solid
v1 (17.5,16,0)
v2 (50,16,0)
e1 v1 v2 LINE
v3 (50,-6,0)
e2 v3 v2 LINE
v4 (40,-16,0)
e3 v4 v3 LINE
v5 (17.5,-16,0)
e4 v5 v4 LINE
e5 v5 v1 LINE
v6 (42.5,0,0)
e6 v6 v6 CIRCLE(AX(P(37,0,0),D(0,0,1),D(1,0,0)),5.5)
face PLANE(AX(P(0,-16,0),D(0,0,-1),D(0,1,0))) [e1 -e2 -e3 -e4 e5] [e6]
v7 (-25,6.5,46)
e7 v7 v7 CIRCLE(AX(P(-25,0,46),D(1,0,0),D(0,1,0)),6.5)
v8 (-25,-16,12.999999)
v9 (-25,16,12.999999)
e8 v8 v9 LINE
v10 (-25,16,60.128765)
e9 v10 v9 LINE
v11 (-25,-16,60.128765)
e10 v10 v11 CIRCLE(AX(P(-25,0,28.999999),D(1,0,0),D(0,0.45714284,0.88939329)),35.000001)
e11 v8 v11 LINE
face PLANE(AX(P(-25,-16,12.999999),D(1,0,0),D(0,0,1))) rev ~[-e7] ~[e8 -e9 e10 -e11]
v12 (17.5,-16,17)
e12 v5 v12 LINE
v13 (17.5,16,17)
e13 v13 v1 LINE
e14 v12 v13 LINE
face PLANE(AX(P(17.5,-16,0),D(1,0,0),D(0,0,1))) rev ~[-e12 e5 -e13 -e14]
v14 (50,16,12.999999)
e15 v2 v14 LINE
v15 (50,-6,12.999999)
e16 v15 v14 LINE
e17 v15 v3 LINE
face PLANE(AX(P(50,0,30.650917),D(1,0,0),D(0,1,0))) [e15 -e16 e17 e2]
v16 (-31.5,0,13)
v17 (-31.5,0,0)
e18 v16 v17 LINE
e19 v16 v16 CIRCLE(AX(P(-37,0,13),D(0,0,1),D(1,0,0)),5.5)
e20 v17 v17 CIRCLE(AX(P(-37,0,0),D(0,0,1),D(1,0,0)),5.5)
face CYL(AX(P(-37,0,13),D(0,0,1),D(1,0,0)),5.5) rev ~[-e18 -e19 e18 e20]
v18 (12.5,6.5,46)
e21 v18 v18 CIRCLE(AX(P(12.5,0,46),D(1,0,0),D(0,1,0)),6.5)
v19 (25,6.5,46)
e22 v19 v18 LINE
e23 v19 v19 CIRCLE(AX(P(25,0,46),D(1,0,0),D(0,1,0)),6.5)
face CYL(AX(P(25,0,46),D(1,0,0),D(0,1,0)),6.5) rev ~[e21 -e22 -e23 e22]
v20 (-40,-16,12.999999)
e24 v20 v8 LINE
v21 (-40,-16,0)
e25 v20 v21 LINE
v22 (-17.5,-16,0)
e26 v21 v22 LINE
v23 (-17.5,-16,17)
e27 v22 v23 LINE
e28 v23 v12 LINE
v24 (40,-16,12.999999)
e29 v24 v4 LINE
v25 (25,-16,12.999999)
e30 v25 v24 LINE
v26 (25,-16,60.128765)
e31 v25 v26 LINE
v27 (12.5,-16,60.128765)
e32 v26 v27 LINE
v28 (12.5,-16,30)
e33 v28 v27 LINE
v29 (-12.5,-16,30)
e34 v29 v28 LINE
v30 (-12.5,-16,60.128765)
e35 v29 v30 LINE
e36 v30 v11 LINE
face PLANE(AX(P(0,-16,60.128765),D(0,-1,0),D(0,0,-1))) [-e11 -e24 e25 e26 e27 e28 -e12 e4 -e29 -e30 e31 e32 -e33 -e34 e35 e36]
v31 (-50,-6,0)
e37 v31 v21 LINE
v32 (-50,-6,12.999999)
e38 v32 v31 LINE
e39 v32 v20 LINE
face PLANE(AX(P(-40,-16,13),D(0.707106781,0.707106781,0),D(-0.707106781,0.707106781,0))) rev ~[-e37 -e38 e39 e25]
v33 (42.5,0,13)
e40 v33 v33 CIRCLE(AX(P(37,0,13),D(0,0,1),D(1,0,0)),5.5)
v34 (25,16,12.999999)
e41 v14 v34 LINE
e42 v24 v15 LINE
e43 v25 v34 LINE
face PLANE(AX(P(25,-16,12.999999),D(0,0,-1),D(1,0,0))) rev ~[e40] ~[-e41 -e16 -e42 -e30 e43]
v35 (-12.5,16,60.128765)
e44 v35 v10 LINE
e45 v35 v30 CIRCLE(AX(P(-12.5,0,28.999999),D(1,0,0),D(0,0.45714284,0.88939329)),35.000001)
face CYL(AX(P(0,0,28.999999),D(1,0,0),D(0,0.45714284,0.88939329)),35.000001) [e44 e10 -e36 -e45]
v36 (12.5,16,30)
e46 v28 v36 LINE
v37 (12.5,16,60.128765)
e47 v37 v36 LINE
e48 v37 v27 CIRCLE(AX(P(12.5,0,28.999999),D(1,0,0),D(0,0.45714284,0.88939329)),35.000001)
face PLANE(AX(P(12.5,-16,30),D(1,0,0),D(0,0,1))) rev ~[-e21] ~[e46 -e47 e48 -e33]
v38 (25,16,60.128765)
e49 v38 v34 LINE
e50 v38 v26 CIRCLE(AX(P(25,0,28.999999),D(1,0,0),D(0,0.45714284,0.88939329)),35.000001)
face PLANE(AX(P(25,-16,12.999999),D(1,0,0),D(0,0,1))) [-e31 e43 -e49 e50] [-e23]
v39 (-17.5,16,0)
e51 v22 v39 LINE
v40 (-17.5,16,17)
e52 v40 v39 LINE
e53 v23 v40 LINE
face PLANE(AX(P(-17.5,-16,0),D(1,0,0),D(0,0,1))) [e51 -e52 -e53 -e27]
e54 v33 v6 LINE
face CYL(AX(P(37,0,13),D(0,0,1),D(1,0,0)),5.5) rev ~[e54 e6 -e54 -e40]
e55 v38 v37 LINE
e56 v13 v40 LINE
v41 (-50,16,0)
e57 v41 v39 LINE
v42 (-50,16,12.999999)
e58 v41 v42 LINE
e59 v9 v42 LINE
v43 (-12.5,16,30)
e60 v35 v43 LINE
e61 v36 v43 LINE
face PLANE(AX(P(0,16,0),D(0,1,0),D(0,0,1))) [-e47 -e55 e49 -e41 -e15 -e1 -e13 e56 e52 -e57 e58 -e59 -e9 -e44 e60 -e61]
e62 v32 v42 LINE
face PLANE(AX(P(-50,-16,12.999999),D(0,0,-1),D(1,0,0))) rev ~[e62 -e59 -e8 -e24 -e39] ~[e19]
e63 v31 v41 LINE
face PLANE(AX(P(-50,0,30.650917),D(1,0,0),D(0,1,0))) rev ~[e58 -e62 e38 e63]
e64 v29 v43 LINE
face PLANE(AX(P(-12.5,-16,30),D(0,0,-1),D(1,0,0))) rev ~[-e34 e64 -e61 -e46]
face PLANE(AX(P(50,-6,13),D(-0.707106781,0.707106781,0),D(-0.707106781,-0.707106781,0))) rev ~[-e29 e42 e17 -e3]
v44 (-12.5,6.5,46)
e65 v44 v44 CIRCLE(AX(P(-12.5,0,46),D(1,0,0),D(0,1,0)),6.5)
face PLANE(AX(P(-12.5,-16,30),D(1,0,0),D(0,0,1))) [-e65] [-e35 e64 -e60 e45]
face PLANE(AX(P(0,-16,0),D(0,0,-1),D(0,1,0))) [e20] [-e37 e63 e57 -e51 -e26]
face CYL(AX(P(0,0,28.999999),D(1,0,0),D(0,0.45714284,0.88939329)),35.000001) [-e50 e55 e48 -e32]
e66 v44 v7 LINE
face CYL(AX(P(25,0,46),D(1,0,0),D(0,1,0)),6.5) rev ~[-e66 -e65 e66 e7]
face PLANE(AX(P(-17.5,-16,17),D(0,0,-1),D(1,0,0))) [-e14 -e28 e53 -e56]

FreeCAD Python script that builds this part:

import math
import FreeCAD as App
import Part
import Sketcher

V = App.Vector
Q = App.Units.Quantity


def add_polygon(sketch, points):
    """Adds a closed chain of lines whose ends are joined by coincident constraints."""
    first, n = sketch.GeometryCount, len(points)
    for a, b in zip(points, points[1:] + points[:1]):
        sketch.addGeometry(Part.LineSegment(App.Vector(*a, 0), App.Vector(*b, 0)), False)
    for i in range(n):
        sketch.addConstraint(Sketcher.Constraint("Coincident", first + i, 2, first + (i + 1) % n, 1))

doc = App.newDocument("Part")
body = doc.addObject("PartDesign::Body", "Body")

sketch1 = body.newObject("Sketcher::SketchObject", "Sketch")
sketch1.AttachmentSupport = (doc.getObject("YZ_Plane"), [""])
sketch1.MapMode = "FlatFace"
sketch1.addGeometry(Part.LineSegment(V(-16, 60, 0), V(-16, 0, 0)), False)
sketch1.addGeometry(Part.LineSegment(V(-16, 0, 0), V(16, 0, 0)), False)
sketch1.addGeometry(Part.LineSegment(V(16, 0, 0), V(16, 60, 0)), False)
sketch1.addGeometry(Part.ArcOfCircle(Part.Circle(V(0, 29, 0), V(0, 0, 1), 35), math.radians(63), math.radians(117)), False)
sketch1.addConstraint(Sketcher.Constraint("Coincident", 0, 2, 1, 1))
sketch1.addConstraint(Sketcher.Constraint("Coincident", 1, 2, 2, 1))
sketch1.addConstraint(Sketcher.Constraint("Coincident", 2, 2, 3, 1))
sketch1.addConstraint(Sketcher.Constraint("Coincident", 3, 2, 0, 1))
sketch1.addConstraint(Sketcher.Constraint("Vertical", 0))
sketch1.addConstraint(Sketcher.Constraint("Horizontal", 1))
sketch1.addConstraint(Sketcher.Constraint("Vertical", 2))
sketch1.addConstraint(Sketcher.Constraint("Symmetric", 0, 2, 1, 2, -1, 1))
sketch1.addConstraint(Sketcher.Constraint("PointOnObject", 3, 3, -2))
sketch1.addConstraint(Sketcher.Constraint("Radius", 3, Q("35.000001 mm")))
sketch1.addConstraint(Sketcher.Constraint("DistanceX", 1, 1, 1, 2, Q("32 mm")))
sketch1.addConstraint(Sketcher.Constraint("DistanceY", -1, 1, 3, 3, Q("28.999999 mm")))
pad1 = body.newObject("PartDesign::Pad", "Pad")
pad1.Profile = sketch1
pad1.Length = 100
pad1.Midplane = True

sketch2 = body.newObject("Sketcher::SketchObject", "Sketch001")
sketch2.AttachmentSupport = (doc.getObject("XZ_Plane"), [""])
sketch2.MapMode = "FlatFace"
sketch2.AttachmentOffset = App.Placement(V(0, 0, 16), App.Rotation())
add_polygon(sketch2, [(-18, 17), (-18, 0), (18, 0), (18, 17)])
add_polygon(sketch2, [(-12, 70), (-12, 30), (12, 30), (12, 70)])
add_polygon(sketch2, [(-50, 73), (-50, 13), (-25, 13), (-25, 73)])
add_polygon(sketch2, [(25, 73), (25, 13), (50, 13), (50, 73)])
sketch2.addConstraint(Sketcher.Constraint("Vertical", 0))
sketch2.addConstraint(Sketcher.Constraint("Horizontal", 1))
sketch2.addConstraint(Sketcher.Constraint("Vertical", 2))
sketch2.addConstraint(Sketcher.Constraint("Horizontal", 3))
sketch2.addConstraint(Sketcher.Constraint("Vertical", 4))
sketch2.addConstraint(Sketcher.Constraint("Horizontal", 5))
sketch2.addConstraint(Sketcher.Constraint("Vertical", 6))
sketch2.addConstraint(Sketcher.Constraint("Horizontal", 7))
sketch2.addConstraint(Sketcher.Constraint("Vertical", 8))
sketch2.addConstraint(Sketcher.Constraint("Horizontal", 9))
sketch2.addConstraint(Sketcher.Constraint("Vertical", 10))
sketch2.addConstraint(Sketcher.Constraint("Horizontal", 11))
sketch2.addConstraint(Sketcher.Constraint("Vertical", 12))
sketch2.addConstraint(Sketcher.Constraint("Horizontal", 13))
sketch2.addConstraint(Sketcher.Constraint("Vertical", 14))
sketch2.addConstraint(Sketcher.Constraint("Horizontal", 15))
sketch2.addConstraint(Sketcher.Constraint("Symmetric", 0, 2, 1, 2, -1, 1))
sketch2.addConstraint(Sketcher.Constraint("Symmetric", 9, 2, 12, 2, -2))
sketch2.addConstraint(Sketcher.Constraint("Symmetric", 11, 2, 14, 2, -2))
sketch2.addConstraint(Sketcher.Constraint("Equal", 7, 9))
sketch2.addConstraint(Sketcher.Constraint("DistanceX", 1, 1, 1, 2, Q("35 mm")))
sketch2.addConstraint(Sketcher.Constraint("DistanceX", 5, 1, 5, 2, Q("25 mm")))
sketch2.addConstraint(Sketcher.Constraint("DistanceY", 0, 2, 0, 1, Q("17 mm")))
sketch2.addConstraint(Sketcher.Constraint("DistanceY", -1, 1, 4, 2, Q("30 mm")))
sketch2.addConstraint(Sketcher.Constraint("DistanceX", 8, 2, -1, 1, Q("50 mm")))
sketch2.addConstraint(Sketcher.Constraint("DistanceY", -1, 1, 8, 2, Q("12.999999 mm")))
sketch2.addConstraint(Sketcher.Constraint("DistanceX", 3, 2, 4, 2, Q("5 mm")))
sketch2.addConstraint(Sketcher.Constraint("DistanceY", 4, 2, 4, 1, Q("40.236561 mm")))
sketch2.addConstraint(Sketcher.Constraint("DistanceY", 8, 2, 8, 1, Q("60.406679 mm")))
pocket1 = body.newObject("PartDesign::Pocket", "Pocket")
pocket1.Profile = sketch2
pocket1.Type = "ThroughAll"

sketch3 = body.newObject("Sketcher::SketchObject", "Sketch002")
sketch3.AttachmentSupport = (doc.getObject("XY_Plane"), [""])
sketch3.MapMode = "FlatFace"
sketch3.AttachmentOffset = App.Placement(V(0, 0, 13), App.Rotation())
add_polygon(sketch3, [(-40, -16), (-50, -6), (-50, -16)])
sketch3.addGeometry(Part.Circle(V(-37, 0, 0), V(0, 0, 1), 6), False)
sketch3.addConstraint(Sketcher.Constraint("Vertical", 1))
sketch3.addConstraint(Sketcher.Constraint("Horizontal", 2))
sketch3.addConstraint(Sketcher.Constraint("PointOnObject", 3, 3, -1))
sketch3.addConstraint(Sketcher.Constraint("Equal", 2, 1))
sketch3.addConstraint(Sketcher.Constraint("Diameter", 3, Q("11 mm")))
sketch3.addConstraint(Sketcher.Constraint("DistanceX", 2, 1, 2, 2, Q("10 mm")))
sketch3.addConstraint(Sketcher.Constraint("DistanceX", 3, 3, -1, 1, Q("37 mm")))
sketch3.addConstraint(Sketcher.Constraint("DistanceX", 0, 2, -1, 1, Q("50 mm")))
sketch3.addConstraint(Sketcher.Constraint("DistanceY", 0, 2, -1, 1, Q("6 mm")))
pocket2 = body.newObject("PartDesign::Pocket", "Pocket001")
pocket2.Profile = sketch3
pocket2.Type = "ThroughAll"

sketch4 = body.newObject("Sketcher::SketchObject", "Sketch003")
sketch4.AttachmentSupport = (doc.getObject("XY_Plane"), [""])
sketch4.MapMode = "FlatFace"
sketch4.AttachmentOffset = App.Placement(V(0, 0, 13), App.Rotation())
add_polygon(sketch4, [(50, -6), (40, -16), (50, -16)])
sketch4.addGeometry(Part.Circle(V(37, 0, 0), V(0, 0, 1), 6), False)
sketch4.addConstraint(Sketcher.Constraint("Horizontal", 1))
sketch4.addConstraint(Sketcher.Constraint("Vertical", 2))
sketch4.addConstraint(Sketcher.Constraint("PointOnObject", 3, 3, -1))
sketch4.addConstraint(Sketcher.Constraint("Equal", 1, 2))
sketch4.addConstraint(Sketcher.Constraint("Diameter", 3, Q("11 mm")))
sketch4.addConstraint(Sketcher.Constraint("DistanceX", 1, 1, 1, 2, Q("10 mm")))
sketch4.addConstraint(Sketcher.Constraint("DistanceX", -1, 1, 3, 3, Q("37 mm")))
sketch4.addConstraint(Sketcher.Constraint("DistanceX", -1, 1, 0, 2, Q("40 mm")))
sketch4.addConstraint(Sketcher.Constraint("DistanceY", 0, 2, -1, 1, Q("16 mm")))
pocket3 = body.newObject("PartDesign::Pocket", "Pocket002")
pocket3.Profile = sketch4
pocket3.Type = "ThroughAll"

sketch5 = body.newObject("Sketcher::SketchObject", "Sketch004")
sketch5.AttachmentSupport = (doc.getObject("YZ_Plane"), [""])
sketch5.MapMode = "FlatFace"
sketch5.AttachmentOffset = App.Placement(V(0, 0, 25), App.Rotation())
sketch5.addGeometry(Part.Circle(V(0, 46, 0), V(0, 0, 1), 6), False)
sketch5.addConstraint(Sketcher.Constraint("PointOnObject", 0, 3, -2))
sketch5.addConstraint(Sketcher.Constraint("Diameter", 0, Q("13 mm")))
sketch5.addConstraint(Sketcher.Constraint("DistanceY", -1, 1, 0, 3, Q("46 mm")))
pocket4 = body.newObject("PartDesign::Pocket", "Pocket003")
pocket4.Profile = sketch5
pocket4.Type = "ThroughAll"

doc.recompute()
